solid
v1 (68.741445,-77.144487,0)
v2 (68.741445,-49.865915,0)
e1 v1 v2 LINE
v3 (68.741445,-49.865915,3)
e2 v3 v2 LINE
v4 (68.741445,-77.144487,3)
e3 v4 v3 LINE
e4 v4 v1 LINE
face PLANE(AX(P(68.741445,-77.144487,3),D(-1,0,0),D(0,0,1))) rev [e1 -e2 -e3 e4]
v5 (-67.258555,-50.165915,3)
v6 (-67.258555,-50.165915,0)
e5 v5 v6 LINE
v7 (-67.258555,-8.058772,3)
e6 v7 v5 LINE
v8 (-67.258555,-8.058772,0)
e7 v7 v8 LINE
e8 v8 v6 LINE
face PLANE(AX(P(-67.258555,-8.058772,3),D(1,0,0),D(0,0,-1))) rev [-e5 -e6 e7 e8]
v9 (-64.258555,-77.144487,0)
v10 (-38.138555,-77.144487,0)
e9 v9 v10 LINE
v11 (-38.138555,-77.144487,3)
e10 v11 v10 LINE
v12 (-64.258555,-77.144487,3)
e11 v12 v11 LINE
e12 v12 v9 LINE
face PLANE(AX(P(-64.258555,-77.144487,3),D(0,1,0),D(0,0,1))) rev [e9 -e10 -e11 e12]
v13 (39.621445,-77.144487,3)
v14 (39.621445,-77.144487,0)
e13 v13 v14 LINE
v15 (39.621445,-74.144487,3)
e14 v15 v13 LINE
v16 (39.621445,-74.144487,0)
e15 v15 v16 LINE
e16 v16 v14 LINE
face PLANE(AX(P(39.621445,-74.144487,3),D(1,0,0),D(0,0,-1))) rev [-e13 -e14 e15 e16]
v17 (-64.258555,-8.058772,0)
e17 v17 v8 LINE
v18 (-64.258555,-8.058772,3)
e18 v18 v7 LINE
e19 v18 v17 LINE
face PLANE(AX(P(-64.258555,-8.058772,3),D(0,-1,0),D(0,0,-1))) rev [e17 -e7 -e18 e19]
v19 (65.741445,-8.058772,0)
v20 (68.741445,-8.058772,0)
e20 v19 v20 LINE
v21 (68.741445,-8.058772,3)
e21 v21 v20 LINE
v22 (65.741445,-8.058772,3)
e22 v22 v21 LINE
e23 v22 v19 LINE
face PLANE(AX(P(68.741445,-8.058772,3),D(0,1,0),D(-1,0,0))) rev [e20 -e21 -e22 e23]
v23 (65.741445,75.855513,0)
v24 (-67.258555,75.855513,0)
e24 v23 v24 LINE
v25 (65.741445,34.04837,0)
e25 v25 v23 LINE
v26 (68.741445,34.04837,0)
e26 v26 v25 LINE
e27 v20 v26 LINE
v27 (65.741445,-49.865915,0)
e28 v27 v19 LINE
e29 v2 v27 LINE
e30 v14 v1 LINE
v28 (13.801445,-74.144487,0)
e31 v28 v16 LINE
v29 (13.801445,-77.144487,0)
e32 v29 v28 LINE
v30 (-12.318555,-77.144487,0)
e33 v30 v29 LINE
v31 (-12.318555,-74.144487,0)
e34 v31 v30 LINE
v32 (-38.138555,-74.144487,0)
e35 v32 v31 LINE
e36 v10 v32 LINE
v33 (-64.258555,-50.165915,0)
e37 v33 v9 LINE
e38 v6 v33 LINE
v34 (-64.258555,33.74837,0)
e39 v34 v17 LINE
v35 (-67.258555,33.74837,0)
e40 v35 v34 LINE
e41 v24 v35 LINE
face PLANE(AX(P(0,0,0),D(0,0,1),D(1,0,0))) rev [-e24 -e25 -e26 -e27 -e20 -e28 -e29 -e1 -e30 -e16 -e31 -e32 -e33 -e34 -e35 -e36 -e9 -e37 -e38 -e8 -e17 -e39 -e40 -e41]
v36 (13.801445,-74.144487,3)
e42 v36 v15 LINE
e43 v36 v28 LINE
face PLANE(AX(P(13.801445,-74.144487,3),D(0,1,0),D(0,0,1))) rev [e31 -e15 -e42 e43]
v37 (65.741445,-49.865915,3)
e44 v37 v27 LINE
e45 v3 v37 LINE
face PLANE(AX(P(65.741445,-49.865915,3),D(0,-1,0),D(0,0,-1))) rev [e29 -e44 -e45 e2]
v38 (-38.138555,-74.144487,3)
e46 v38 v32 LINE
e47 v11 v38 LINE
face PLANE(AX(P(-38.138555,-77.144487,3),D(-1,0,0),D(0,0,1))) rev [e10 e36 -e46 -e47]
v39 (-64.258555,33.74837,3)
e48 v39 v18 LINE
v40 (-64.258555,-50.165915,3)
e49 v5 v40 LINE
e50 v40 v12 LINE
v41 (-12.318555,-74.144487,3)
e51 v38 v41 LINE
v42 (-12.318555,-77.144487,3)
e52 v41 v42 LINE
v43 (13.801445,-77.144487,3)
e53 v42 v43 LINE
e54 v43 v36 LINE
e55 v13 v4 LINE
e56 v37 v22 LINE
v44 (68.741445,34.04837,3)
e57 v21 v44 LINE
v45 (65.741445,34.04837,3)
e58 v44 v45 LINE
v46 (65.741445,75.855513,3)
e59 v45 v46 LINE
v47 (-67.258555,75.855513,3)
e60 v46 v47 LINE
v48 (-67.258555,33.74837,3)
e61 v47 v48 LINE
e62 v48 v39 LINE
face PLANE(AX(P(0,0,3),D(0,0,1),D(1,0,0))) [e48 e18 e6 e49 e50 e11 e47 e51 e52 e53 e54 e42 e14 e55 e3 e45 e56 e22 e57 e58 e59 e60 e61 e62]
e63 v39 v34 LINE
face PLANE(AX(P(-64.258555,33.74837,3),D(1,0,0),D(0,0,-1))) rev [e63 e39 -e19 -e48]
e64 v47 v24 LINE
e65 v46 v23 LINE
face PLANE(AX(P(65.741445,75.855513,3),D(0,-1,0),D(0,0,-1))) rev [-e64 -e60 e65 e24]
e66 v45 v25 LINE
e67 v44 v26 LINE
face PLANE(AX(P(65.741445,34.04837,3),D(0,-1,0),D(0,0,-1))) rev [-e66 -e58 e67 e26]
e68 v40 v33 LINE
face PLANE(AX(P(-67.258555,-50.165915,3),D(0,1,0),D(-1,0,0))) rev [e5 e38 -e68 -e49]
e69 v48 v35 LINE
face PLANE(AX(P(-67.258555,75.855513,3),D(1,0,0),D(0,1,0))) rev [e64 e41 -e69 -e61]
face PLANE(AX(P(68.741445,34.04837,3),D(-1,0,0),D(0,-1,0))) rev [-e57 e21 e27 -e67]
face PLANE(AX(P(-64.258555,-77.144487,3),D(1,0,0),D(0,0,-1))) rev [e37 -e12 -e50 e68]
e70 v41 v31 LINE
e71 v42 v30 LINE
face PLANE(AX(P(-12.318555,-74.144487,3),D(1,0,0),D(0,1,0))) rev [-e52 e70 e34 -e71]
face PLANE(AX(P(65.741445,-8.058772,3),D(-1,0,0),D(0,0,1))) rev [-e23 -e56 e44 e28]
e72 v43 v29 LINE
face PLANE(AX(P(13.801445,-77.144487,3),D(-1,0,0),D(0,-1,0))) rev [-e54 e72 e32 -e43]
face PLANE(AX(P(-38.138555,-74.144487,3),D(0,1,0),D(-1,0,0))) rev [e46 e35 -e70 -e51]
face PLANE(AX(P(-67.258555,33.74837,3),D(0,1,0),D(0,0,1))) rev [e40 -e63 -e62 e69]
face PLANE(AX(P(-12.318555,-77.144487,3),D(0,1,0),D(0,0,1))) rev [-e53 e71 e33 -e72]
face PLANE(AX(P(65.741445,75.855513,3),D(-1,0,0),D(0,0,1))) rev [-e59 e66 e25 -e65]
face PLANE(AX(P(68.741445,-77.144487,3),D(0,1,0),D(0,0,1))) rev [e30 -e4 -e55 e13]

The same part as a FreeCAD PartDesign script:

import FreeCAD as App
import Part
import Sketcher
from FreeCAD import Vector
Q = App.Units.Quantity

doc = App.newDocument("Part")
params = doc.addObject("Spreadsheet::Sheet", "Params")
for row, (alias, value) in enumerate([
    ("sketch1_width", "3 mm"),
    ("sketch1_width2", "133 mm"),
    ("sketch1_width3", "29.12 mm"),
    ("sketch1_width4", "26.12 mm"),
    ("pad1_length", "3 mm"),
], start=1):
    params.set(f"A{row}", alias)
    params.set(f"B{row}", "=" + value)
    params.setAlias(f"B{row}", alias)

body = doc.addObject("PartDesign::Body", "Body")

sketch1 = doc.addObject("Sketcher::SketchObject", "Sketch")
body.addObject(sketch1)
sketch1.AttachmentSupport = (doc.XY_Plane, [""])
sketch1.MapMode = "FlatFace"
sketch1.addGeometry([
    Part.LineSegment(Vector(39.6, -77.1, 0), Vector(68.7, -77.1, 0)),
    Part.LineSegment(Vector(68.7, -77.1, 0), Vector(68.7, -49.9, 0)),
    Part.LineSegment(Vector(68.7, -49.9, 0), Vector(65.7, -49.9, 0)),
    Part.LineSegment(Vector(65.7, -49.9, 0), Vector(65.7, -8.1, 0)),
    Part.LineSegment(Vector(65.7, -8.1, 0), Vector(68.7, -8.1, 0)),
    Part.LineSegment(Vector(68.7, -8.1, 0), Vector(68.7, 34, 0)),
    Part.LineSegment(Vector(68.7, 34, 0), Vector(65.7, 34, 0)),
    Part.LineSegment(Vector(65.7, 34, 0), Vector(65.7, 75.9, 0)),
    Part.LineSegment(Vector(65.7, 75.9, 0), Vector(-67.3, 75.9, 0)),
    Part.LineSegment(Vector(-67.3, 75.9, 0), Vector(-67.3, 33.7, 0)),
    Part.LineSegment(Vector(-67.3, 33.7, 0), Vector(-64.3, 33.7, 0)),
    Part.LineSegment(Vector(-64.3, 33.7, 0), Vector(-64.3, -8.1, 0)),
    Part.LineSegment(Vector(-64.3, -8.1, 0), Vector(-67.3, -8.1, 0)),
    Part.LineSegment(Vector(-67.3, -8.1, 0), Vector(-67.3, -50.2, 0)),
    Part.LineSegment(Vector(-67.3, -50.2, 0), Vector(-64.3, -50.2, 0)),
    Part.LineSegment(Vector(-64.3, -50.2, 0), Vector(-64.3, -77.1, 0)),
    Part.LineSegment(Vector(-64.3, -77.1, 0), Vector(-38.1, -77.1, 0)),
    Part.LineSegment(Vector(-38.1, -77.1, 0), Vector(-38.1, -74.1, 0)),
    Part.LineSegment(Vector(-38.1, -74.1, 0), Vector(-12.3, -74.1, 0)),
    Part.LineSegment(Vector(-12.3, -74.1, 0), Vector(-12.3, -77.1, 0)),
    Part.LineSegment(Vector(-12.3, -77.1, 0), Vector(13.8, -77.1, 0)),
    Part.LineSegment(Vector(13.8, -77.1, 0), Vector(13.8, -74.1, 0)),
    Part.LineSegment(Vector(13.8, -74.1, 0), Vector(39.6, -74.1, 0)),
    Part.LineSegment(Vector(39.6, -74.1, 0), Vector(39.6, -77.1, 0)),
], False)
sketch1.addConstraint([
    Sketcher.Constraint("Coincident", 0, 2, 1, 1),
    Sketcher.Constraint("Coincident", 1, 2, 2, 1),
    Sketcher.Constraint("Coincident", 2, 2, 3, 1),
    Sketcher.Constraint("Coincident", 3, 2, 4, 1),
    Sketcher.Constraint("Coincident", 4, 2, 5, 1),
    Sketcher.Constraint("Coincident", 5, 2, 6, 1),
    Sketcher.Constraint("Coincident", 6, 2, 7, 1),
    Sketcher.Constraint("Coincident", 7, 2, 8, 1),
    Sketcher.Constraint("Coincident", 8, 2, 9, 1),
    Sketcher.Constraint("Coincident", 9, 2, 10, 1),
    Sketcher.Constraint("Coincident", 10, 2, 11, 1),
    Sketcher.Constraint("Coincident", 11, 2, 12, 1),
    Sketcher.Constraint("Coincident", 12, 2, 13, 1),
    Sketcher.Constraint("Coincident", 13, 2, 14, 1),
    Sketcher.Constraint("Coincident", 14, 2, 15, 1),
    Sketcher.Constraint("Coincident", 15, 2, 16, 1),
    Sketcher.Constraint("Coincident", 16, 2, 17, 1),
    Sketcher.Constraint("Coincident", 17, 2, 18, 1),
    Sketcher.Constraint("Coincident", 18, 2, 19, 1),
    Sketcher.Constraint("Coincident", 19, 2, 20, 1),
    Sketcher.Constraint("Coincident", 20, 2, 21, 1),
    Sketcher.Constraint("Coincident", 21, 2, 22, 1),
    Sketcher.Constraint("Coincident", 22, 2, 23, 1),
    Sketcher.Constraint("Coincident", 23, 2, 0, 1),
    Sketcher.Constraint("Horizontal", 0),
    Sketcher.Constraint("Vertical", 1),
    Sketcher.Constraint("Horizontal", 2),
    Sketcher.Constraint("Vertical", 3),
    Sketcher.Constraint("Horizontal", 4),
    Sketcher.Constraint("Vertical", 5),
    Sketcher.Constraint("Horizontal", 6),
    Sketcher.Constraint("Vertical", 7),
    Sketcher.Constraint("Horizontal", 8),
    Sketcher.Constraint("Vertical", 9),
    Sketcher.Constraint("Horizontal", 10),
    Sketcher.Constraint("Vertical", 11),
    Sketcher.Constraint("Horizontal", 12),
    Sketcher.Constraint("Vertical", 13),
    Sketcher.Constraint("Horizontal", 14),
    Sketcher.Constraint("Vertical", 15),
    Sketcher.Constraint("Horizontal", 16),
    Sketcher.Constraint("Vertical", 17),
    Sketcher.Constraint("Horizontal", 18),
    Sketcher.Constraint("Vertical", 19),
    Sketcher.Constraint("Horizontal", 20),
    Sketcher.Constraint("Vertical", 21),
    Sketcher.Constraint("Horizontal", 22),
    Sketcher.Constraint("Vertical", 23),
    Sketcher.Constraint("Horizontal", 4, 2, 11, 2),
    Sketcher.Constraint("Horizontal", 0, 2, 15, 2),
    Sketcher.Constraint("Horizontal", 16, 2, 19, 2),
    Sketcher.Constraint("Horizontal", 18, 2, 21, 2),
    Sketcher.Constraint("Vertical", 1, 2, 4, 2),
    Sketcher.Constraint("Vertical", 3, 2, 6, 2),
    Sketcher.Constraint("Vertical", 9, 2, 12, 2),
    Sketcher.Constraint("Vertical", 11, 2, 14, 2),
    Sketcher.Constraint("Equal", 6, 10),
    Sketcher.Constraint("Equal", 16, 20),
    Sketcher.Constraint("Equal", 18, 22),
    Sketcher.Constraint("Equal", 3, 7),
    Sketcher.Constraint("Equal", 5, 9),
    Sketcher.Constraint("Equal", 9, 13),
    Sketcher.Constraint("Equal", 14, 17),
    Sketcher.Constraint("DistanceX", 2, 2, 2, 1, Q("3 mm")),
    Sketcher.Constraint("DistanceX", 8, 2, 8, 1, Q("133 mm")),
    Sketcher.Constraint("DistanceX", 0, 1, 0, 2, Q("29.12 mm")),
    Sketcher.Constraint("DistanceX", 16, 1, 16, 2, Q("26.12 mm")),
    Sketcher.Constraint("DistanceY", 9, 2, 6, 2, Q("0.3 mm")),
    Sketcher.Constraint("DistanceY", 1, 1, 1, 2, Q("27.278571 mm")),
    Sketcher.Constraint("DistanceY", 3, 1, 3, 2, Q("41.807143 mm")),
    Sketcher.Constraint("DistanceY", -1, 1, 5, 2, Q("34.04837 mm")),
    Sketcher.Constraint("DistanceX", -1, 1, 0, 2, Q("68.741445 mm")),
])
sketch1.setExpression("Constraints[63]", "Params.sketch1_width")
sketch1.setExpression("Constraints[64]", "Params.sketch1_width2")
sketch1.setExpression("Constraints[65]", "Params.sketch1_width3")
sketch1.setExpression("Constraints[66]", "Params.sketch1_width4")
pad1 = doc.addObject("PartDesign::Pad", "Pad")
body.addObject(pad1)
pad1.Profile = sketch1
pad1.setExpression("Length", "Params.pad1_length")

doc.recompute()
